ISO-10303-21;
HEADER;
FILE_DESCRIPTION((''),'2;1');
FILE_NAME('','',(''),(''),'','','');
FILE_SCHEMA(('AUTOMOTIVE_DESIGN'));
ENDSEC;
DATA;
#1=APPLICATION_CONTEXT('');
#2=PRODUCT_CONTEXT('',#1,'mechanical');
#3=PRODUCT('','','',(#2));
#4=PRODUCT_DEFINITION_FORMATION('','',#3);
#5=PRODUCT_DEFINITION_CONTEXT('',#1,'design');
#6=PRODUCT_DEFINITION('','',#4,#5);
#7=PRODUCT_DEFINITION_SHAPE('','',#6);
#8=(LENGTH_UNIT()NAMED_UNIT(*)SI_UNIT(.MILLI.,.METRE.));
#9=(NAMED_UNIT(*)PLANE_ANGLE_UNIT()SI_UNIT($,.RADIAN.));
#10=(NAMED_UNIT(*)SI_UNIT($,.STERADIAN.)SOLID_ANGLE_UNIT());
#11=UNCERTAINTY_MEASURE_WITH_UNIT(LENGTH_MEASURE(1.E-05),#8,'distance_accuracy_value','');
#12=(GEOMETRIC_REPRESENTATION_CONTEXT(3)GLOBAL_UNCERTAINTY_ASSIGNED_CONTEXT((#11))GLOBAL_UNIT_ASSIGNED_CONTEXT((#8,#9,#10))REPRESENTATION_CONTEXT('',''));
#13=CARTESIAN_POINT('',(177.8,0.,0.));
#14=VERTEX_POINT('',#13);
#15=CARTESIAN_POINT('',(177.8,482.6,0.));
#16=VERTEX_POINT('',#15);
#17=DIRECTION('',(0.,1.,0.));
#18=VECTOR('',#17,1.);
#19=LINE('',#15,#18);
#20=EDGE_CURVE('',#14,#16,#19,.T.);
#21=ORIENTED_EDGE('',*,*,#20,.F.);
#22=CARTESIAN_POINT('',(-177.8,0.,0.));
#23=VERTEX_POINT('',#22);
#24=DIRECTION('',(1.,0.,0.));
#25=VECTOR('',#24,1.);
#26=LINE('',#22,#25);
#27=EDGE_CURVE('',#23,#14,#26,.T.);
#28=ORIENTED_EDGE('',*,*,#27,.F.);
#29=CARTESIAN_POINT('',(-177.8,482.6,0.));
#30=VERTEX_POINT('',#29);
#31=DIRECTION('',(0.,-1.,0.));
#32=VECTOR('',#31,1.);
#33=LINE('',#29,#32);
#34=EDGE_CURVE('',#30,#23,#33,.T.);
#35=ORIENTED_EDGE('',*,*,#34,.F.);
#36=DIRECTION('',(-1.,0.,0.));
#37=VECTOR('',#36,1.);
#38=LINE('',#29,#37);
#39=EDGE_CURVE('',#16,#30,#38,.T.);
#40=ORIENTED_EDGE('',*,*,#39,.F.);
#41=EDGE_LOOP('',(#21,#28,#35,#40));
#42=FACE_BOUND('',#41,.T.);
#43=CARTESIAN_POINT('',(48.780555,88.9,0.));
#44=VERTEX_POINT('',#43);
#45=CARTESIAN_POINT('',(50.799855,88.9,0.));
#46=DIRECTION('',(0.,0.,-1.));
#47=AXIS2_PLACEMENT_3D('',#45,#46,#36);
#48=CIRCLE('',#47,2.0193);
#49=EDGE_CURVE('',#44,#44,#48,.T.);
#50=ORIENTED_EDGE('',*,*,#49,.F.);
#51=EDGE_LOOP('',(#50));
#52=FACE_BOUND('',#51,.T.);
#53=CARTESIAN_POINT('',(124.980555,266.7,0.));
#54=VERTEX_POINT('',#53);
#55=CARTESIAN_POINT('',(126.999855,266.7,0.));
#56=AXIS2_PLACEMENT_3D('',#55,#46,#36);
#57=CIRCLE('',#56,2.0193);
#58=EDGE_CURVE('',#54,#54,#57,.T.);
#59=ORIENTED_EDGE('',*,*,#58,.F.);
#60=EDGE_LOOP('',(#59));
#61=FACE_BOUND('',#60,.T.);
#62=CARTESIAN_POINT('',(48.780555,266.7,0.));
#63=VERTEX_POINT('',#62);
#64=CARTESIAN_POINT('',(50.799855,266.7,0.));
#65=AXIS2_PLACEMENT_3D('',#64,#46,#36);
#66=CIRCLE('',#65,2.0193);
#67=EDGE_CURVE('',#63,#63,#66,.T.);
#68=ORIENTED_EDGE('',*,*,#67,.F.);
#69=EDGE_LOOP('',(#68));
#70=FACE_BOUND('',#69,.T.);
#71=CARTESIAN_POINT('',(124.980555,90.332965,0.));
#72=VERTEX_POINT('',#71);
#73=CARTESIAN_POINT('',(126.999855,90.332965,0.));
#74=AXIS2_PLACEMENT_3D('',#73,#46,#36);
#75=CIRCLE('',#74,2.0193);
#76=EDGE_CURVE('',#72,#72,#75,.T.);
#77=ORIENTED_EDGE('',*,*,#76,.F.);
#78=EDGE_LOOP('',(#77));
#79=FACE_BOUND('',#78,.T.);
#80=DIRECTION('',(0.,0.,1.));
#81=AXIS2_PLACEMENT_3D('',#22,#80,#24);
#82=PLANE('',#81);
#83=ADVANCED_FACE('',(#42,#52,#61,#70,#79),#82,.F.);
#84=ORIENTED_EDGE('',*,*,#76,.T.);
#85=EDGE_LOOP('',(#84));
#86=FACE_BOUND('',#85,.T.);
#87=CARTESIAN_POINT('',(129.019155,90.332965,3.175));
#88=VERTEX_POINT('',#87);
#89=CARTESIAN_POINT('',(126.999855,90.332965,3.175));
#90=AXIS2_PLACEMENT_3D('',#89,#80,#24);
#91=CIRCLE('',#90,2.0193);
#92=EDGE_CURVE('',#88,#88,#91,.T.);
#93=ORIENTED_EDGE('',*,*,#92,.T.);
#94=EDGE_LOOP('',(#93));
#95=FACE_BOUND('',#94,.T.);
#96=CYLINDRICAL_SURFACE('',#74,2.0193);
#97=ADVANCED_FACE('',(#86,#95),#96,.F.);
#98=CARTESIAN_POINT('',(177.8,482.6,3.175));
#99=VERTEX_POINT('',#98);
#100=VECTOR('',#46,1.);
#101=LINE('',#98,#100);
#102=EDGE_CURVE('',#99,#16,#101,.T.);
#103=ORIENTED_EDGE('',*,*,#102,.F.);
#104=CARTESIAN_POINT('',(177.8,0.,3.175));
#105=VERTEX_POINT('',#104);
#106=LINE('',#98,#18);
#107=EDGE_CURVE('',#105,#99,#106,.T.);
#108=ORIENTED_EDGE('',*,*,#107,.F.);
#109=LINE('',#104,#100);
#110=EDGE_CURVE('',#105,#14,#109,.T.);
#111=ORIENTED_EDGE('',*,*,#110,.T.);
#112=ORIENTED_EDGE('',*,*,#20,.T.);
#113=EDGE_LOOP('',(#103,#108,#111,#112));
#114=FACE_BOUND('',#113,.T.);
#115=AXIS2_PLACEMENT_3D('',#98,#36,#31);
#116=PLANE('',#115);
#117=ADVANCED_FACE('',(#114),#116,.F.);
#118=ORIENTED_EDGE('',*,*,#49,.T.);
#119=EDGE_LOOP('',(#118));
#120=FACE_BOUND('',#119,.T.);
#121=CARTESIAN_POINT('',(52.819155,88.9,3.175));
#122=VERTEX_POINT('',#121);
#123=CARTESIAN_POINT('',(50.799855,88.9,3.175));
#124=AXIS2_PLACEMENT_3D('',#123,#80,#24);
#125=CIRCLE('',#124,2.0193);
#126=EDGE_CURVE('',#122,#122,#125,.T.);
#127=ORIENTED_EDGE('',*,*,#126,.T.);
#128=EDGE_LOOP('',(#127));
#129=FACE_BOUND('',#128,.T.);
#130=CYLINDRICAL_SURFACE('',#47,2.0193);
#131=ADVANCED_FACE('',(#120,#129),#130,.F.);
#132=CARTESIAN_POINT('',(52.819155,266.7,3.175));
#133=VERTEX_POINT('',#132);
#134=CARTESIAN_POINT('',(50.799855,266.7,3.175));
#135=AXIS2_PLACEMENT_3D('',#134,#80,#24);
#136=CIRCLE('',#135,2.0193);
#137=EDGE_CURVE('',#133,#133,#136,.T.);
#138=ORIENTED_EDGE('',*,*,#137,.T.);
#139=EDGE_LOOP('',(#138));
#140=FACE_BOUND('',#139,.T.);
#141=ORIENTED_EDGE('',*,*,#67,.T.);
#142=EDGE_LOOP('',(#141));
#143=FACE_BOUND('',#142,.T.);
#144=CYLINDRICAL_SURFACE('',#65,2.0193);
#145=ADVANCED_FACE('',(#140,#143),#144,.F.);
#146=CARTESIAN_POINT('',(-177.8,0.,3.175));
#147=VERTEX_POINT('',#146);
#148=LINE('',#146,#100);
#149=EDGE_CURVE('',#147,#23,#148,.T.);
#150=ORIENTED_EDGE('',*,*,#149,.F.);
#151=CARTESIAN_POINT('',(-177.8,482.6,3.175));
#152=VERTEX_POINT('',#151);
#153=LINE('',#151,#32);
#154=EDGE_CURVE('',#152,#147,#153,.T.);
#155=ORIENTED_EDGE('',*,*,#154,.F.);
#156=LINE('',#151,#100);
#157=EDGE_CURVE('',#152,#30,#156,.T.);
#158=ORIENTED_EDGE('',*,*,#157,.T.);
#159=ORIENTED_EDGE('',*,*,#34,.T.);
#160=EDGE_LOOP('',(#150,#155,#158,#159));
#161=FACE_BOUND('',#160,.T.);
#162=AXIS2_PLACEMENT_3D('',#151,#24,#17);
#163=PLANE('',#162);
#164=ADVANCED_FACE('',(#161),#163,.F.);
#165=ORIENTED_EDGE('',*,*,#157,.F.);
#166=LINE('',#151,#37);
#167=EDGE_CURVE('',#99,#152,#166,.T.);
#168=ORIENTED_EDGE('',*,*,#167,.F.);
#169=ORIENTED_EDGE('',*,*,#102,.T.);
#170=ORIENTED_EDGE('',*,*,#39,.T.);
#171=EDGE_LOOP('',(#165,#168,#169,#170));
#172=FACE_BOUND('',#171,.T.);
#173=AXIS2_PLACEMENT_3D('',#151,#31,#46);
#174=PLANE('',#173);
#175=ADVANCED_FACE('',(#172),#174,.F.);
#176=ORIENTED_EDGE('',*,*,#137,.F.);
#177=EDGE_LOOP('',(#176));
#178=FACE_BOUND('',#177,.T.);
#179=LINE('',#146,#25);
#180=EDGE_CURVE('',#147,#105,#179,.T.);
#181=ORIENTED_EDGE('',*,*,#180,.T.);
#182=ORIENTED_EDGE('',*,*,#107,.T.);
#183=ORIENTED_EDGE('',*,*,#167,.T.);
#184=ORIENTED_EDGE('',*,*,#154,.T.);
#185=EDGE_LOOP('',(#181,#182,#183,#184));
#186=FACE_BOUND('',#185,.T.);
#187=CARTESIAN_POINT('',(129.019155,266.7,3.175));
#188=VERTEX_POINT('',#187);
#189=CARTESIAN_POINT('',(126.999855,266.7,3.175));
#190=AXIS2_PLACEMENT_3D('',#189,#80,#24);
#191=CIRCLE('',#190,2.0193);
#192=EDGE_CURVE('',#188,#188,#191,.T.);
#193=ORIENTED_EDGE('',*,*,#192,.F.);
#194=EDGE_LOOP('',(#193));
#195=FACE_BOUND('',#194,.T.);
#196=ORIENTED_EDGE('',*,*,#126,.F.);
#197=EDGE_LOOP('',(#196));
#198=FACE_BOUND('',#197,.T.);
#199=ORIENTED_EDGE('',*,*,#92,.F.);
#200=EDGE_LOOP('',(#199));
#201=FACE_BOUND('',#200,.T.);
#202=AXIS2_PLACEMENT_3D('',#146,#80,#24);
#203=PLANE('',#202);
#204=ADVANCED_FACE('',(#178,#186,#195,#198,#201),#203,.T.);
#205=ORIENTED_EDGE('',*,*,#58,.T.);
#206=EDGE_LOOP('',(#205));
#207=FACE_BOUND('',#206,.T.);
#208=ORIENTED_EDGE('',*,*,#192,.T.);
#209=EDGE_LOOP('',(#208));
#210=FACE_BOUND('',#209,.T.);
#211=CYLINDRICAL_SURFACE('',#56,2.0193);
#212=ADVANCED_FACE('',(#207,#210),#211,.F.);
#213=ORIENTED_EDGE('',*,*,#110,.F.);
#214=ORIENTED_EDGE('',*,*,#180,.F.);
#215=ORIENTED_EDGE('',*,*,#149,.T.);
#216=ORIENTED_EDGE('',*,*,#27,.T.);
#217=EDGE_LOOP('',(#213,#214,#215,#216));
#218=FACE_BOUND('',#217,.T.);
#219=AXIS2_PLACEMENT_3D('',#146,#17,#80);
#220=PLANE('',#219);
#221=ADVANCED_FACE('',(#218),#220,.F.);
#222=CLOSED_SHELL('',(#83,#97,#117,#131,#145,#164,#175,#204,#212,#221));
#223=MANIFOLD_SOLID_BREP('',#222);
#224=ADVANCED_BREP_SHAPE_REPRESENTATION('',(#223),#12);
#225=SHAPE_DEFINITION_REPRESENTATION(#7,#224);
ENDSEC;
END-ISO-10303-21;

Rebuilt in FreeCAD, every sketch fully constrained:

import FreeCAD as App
import Part
import Sketcher
from FreeCAD import Vector
Q = App.Units.Quantity


def add_polygon(sketch, points):
    """Adds a closed chain of lines whose ends are joined by coincident constraints."""
    first, n = sketch.GeometryCount, len(points)
    for a, b in zip(points, points[1:] + points[:1]):
        sketch.addGeometry(Part.LineSegment(App.Vector(*a, 0), App.Vector(*b, 0)), False)
    for i in range(n):
        sketch.addConstraint(Sketcher.Constraint("Coincident", first + i, 2, first + (i + 1) % n, 1))

doc = App.newDocument("Part")
body = doc.addObject("PartDesign::Body", "Body")

# Sketch on XY plane
sketch1 = body.newObject("Sketcher::SketchObject", "Sketch")
sketch1.AttachmentSupport = (doc.getObject("XY_Plane"), [""])
sketch1.MapMode = "FlatFace"
add_polygon(sketch1, [(-178, 483), (-178, 0), (178, 0), (178, 483)])  # lines 0-3
sketch1.addConstraint(Sketcher.Constraint("Vertical", 0))
sketch1.addConstraint(Sketcher.Constraint("Horizontal", 1))
sketch1.addConstraint(Sketcher.Constraint("Vertical", 2))
sketch1.addConstraint(Sketcher.Constraint("Horizontal", 3))
sketch1.addConstraint(Sketcher.Constraint("Symmetric", 0, 2, 1, 2, -1, 1))
sketch1.addConstraint(Sketcher.Constraint("DistanceX", 1, 1, 1, 2, Q("14 in")))
sketch1.addConstraint(Sketcher.Constraint("DistanceY", 0, 2, 0, 1, Q("19 in")))
pad1 = body.newObject("PartDesign::Pad", "Pad")
pad1.Profile = sketch1
pad1.Length = Q("0.125 in")

# Sketch on XY plane
sketch2 = body.newObject("Sketcher::SketchObject", "Sketch001")
sketch2.AttachmentSupport = (doc.getObject("XY_Plane"), [""])
sketch2.MapMode = "FlatFace"
sketch2.addGeometry(Part.Circle(Vector(127, 266.7, 0), Vector(0, 0, 1), 2), False)
sketch2.addGeometry(Part.Circle(Vector(50.8, 266.7, 0), Vector(0, 0, 1), 2), False)
sketch2.addGeometry(Part.Circle(Vector(50.8, 88.9, 0), Vector(0, 0, 1), 2), False)
sketch2.addGeometry(Part.Circle(Vector(127, 90.3, 0), Vector(0, 0, 1), 2), False)
sketch2.addConstraint(Sketcher.Constraint("Equal", 0, 1))
sketch2.addConstraint(Sketcher.Constraint("Equal", 1, 2))
sketch2.addConstraint(Sketcher.Constraint("Equal", 2, 3))
sketch2.addConstraint(Sketcher.Constraint("Horizontal", 0, 3, 1, 3))
sketch2.addConstraint(Sketcher.Constraint("Vertical", 1, 3, 2, 3))
sketch2.addConstraint(Sketcher.Constraint("Vertical", 0, 3, 3, 3))
sketch2.addConstraint(Sketcher.Constraint("Diameter", 0, Q("0.159 in")))
sketch2.addConstraint(Sketcher.Constraint("DistanceX", 1, 3, 0, 3, Q("3 in")))
sketch2.addConstraint(Sketcher.Constraint("DistanceY", 2, 3, 1, 3, Q("7 in")))
sketch2.addConstraint(Sketcher.Constraint("DistanceY", -1, 1, 0, 3, Q("10.5 in")))
sketch2.addConstraint(Sketcher.Constraint("DistanceX", -1, 1, 0, 3, Q("126.999855 mm")))
sketch2.addConstraint(Sketcher.Constraint("DistanceY", -1, 1, 3, 3, Q("90.332965 mm")))
doc.recompute()
hole = body.newObject("PartDesign::Hole", "Hole")
hole.Profile = sketch2
hole.ThreadType = "None"
hole.Diameter = Q("0.159 in")
hole.DepthType = "Dimension"
hole.Depth = Q("0.125 in")
hole.DrillPoint = "Flat"
hole.Reversed = True

doc.recompute()
